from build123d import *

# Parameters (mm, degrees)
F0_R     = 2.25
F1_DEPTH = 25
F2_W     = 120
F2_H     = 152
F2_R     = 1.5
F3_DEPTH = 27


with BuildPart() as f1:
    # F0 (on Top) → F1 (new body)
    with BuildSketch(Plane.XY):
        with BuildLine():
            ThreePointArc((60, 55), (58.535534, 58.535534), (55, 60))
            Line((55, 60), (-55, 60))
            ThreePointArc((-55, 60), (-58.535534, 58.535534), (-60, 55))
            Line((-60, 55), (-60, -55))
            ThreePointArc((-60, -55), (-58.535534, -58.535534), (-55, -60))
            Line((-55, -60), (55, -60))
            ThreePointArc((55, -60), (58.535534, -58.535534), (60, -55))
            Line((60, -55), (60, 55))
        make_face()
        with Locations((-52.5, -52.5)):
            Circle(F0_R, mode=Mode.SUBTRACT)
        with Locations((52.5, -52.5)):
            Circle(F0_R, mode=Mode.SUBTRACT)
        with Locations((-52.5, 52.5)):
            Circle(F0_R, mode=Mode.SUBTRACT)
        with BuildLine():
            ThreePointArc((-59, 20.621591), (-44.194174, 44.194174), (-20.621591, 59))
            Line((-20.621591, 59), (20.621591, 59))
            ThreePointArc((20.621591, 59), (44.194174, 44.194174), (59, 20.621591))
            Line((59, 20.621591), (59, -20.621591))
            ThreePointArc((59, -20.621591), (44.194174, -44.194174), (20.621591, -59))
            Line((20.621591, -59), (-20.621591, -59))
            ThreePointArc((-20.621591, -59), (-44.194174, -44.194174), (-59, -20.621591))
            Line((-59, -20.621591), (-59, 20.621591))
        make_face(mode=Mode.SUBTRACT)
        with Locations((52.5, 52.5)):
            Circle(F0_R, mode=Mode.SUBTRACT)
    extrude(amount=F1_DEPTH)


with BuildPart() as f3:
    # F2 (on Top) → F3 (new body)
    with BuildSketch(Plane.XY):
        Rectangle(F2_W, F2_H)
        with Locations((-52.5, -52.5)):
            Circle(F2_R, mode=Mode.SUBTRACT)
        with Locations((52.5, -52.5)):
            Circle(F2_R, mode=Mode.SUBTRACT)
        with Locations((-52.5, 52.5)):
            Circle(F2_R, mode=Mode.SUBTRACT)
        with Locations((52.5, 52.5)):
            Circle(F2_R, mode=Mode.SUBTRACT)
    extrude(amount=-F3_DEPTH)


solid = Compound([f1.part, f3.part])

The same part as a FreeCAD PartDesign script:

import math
import FreeCAD as App
import Part
import Sketcher
Q = App.Units.Quantity


def add_polygon(sketch, points):
    """Adds a closed chain of lines whose ends are joined by coincident constraints."""
    first, n = sketch.GeometryCount, len(points)
    for a, b in zip(points, points[1:] + points[:1]):
        sketch.addGeometry(Part.LineSegment(App.Vector(*a, 0), App.Vector(*b, 0)), False)
    for i in range(n):
        sketch.addConstraint(Sketcher.Constraint("Coincident", first + i, 2, first + (i + 1) % n, 1))

doc = App.newDocument("Part")
body = doc.addObject("PartDesign::Body", "Body")

sketch1 = body.newObject("Sketcher::SketchObject", "Sketch")
sketch1.AttachmentSupport = (doc.getObject("XY_Plane"), [""])
sketch1.MapMode = "FlatFace"
sketch1.addGeometry([
    Part.ArcOfCircle(Part.Circle(App.Vector(55, 55, 0), App.Vector(0, 0, 1), 5), math.radians(0), math.radians(90)),
    Part.LineSegment(App.Vector(55, 60, 0), App.Vector(-55, 60, 0)),
    Part.ArcOfCircle(Part.Circle(App.Vector(-55, 55, 0), App.Vector(0, 0, 1), 5), math.radians(90), math.radians(180)),
    Part.LineSegment(App.Vector(-60, 55, 0), App.Vector(-60, -55, 0)),
    Part.ArcOfCircle(Part.Circle(App.Vector(-55, -55, 0), App.Vector(0, 0, 1), 5), math.radians(180), math.radians(270)),
    Part.LineSegment(App.Vector(-55, -60, 0), App.Vector(55, -60, 0)),
    Part.ArcOfCircle(Part.Circle(App.Vector(55, -55, 0), App.Vector(0, 0, 1), 5), math.radians(-90), math.radians(0)),
    Part.LineSegment(App.Vector(60, -55, 0), App.Vector(60, 55, 0)),
    Part.Circle(App.Vector(-52.5, -52.5, 0), App.Vector(0, 0, 1), 2.2),
    Part.Circle(App.Vector(52.5, -52.5, 0), App.Vector(0, 0, 1), 2.2),
    Part.Circle(App.Vector(-52.5, 52.5, 0), App.Vector(0, 0, 1), 2.2),
    Part.LineSegment(App.Vector(-59, -20.6, 0), App.Vector(-59, 20.6, 0)),
    Part.ArcOfCircle(Part.Circle(App.Vector(0, 0, 0), App.Vector(0, 0, 1), 62.5), math.radians(109), math.radians(161)),
    Part.LineSegment(App.Vector(-20.6, 59, 0), App.Vector(20.6, 59, 0)),
    Part.ArcOfCircle(Part.Circle(App.Vector(0, 0, 0), App.Vector(0, 0, 1), 62.5), math.radians(19), math.radians(71)),
    Part.LineSegment(App.Vector(59, 20.6, 0), App.Vector(59, -20.6, 0)),
    Part.ArcOfCircle(Part.Circle(App.Vector(0, 0, 0), App.Vector(0, 0, 1), 62.5), math.radians(-71), math.radians(-19)),
    Part.LineSegment(App.Vector(20.6, -59, 0), App.Vector(-20.6, -59, 0)),
    Part.ArcOfCircle(Part.Circle(App.Vector(0, 0, 0), App.Vector(0, 0, 1), 62.5), math.radians(-161), math.radians(-109)),
    Part.Circle(App.Vector(52.5, 52.5, 0), App.Vector(0, 0, 1), 2.2),
], False)
sketch1.addConstraint([
    Sketcher.Constraint("Tangent", 0, 2, 1, 1),
    Sketcher.Constraint("Tangent", 1, 2, 2, 1),
    Sketcher.Constraint("Tangent", 2, 2, 3, 1),
    Sketcher.Constraint("Tangent", 3, 2, 4, 1),
    Sketcher.Constraint("Tangent", 4, 2, 5, 1),
    Sketcher.Constraint("Tangent", 5, 2, 6, 1),
    Sketcher.Constraint("Tangent", 6, 2, 7, 1),
    Sketcher.Constraint("Tangent", 7, 2, 0, 1),
    Sketcher.Constraint("Coincident", 11, 2, 12, 2),
    Sketcher.Constraint("Coincident", 12, 1, 13, 1),
    Sketcher.Constraint("Coincident", 13, 2, 14, 2),
    Sketcher.Constraint("Coincident", 14, 1, 15, 1),
    Sketcher.Constraint("Coincident", 15, 2, 16, 2),
    Sketcher.Constraint("Coincident", 16, 1, 17, 1),
    Sketcher.Constraint("Coincident", 17, 2, 18, 2),
    Sketcher.Constraint("Coincident", 18, 1, 11, 1),
    Sketcher.Constraint("Horizontal", 1),
    Sketcher.Constraint("Vertical", 3),
    Sketcher.Constraint("Horizontal", 5),
    Sketcher.Constraint("Vertical", 7),
    Sketcher.Constraint("Vertical", 11),
    Sketcher.Constraint("Horizontal", 13),
    Sketcher.Constraint("Vertical", 15),
    Sketcher.Constraint("Horizontal", 17),
    Sketcher.Constraint("Coincident", 12, 3, -1, 1),
    Sketcher.Constraint("Coincident", 14, 3, -1, 1),
    Sketcher.Constraint("Coincident", 16, 3, -1, 1),
    Sketcher.Constraint("Coincident", 18, 3, -1, 1),
    Sketcher.Constraint("Equal", 0, 2),
    Sketcher.Constraint("Equal", 2, 4),
    Sketcher.Constraint("Equal", 4, 6),
    Sketcher.Constraint("Equal", 8, 9),
    Sketcher.Constraint("Equal", 9, 10),
    Sketcher.Constraint("Equal", 12, 14),
    Sketcher.Constraint("Equal", 14, 16),
    Sketcher.Constraint("Equal", 16, 18),
    Sketcher.Constraint("Equal", 10, 19),
    Sketcher.Constraint("Symmetric", 0, 3, 4, 3, -1, 1),
    Sketcher.Constraint("Symmetric", 9, 3, 10, 3, -1, 1),
    Sketcher.Constraint("Symmetric", 8, 3, 19, 3, -1, 1),
    Sketcher.Constraint("Symmetric", 8, 3, 9, 3, -2),
    Sketcher.Constraint("Horizontal", 11, 2, 14, 1),
    Sketcher.Constraint("Vertical", 13, 2, 16, 1),
    Sketcher.Constraint("Equal", 5, 3),
    Sketcher.Constraint("Equal", 17, 11),
    Sketcher.Constraint("Radius", 0, Q("5 mm")),
    Sketcher.Constraint("Diameter", 8, Q("4.5 mm")),
    Sketcher.Constraint("Radius", 12, Q("62.499999 mm")),
    Sketcher.Constraint("DistanceX", 1, 2, 1, 1, Q("110 mm")),
    Sketcher.Constraint("DistanceX", 11, 2, -1, 1, Q("59 mm")),
    Sketcher.Constraint("DistanceX", 8, 3, 9, 3, Q("105 mm")),
    Sketcher.Constraint("DistanceY", 8, 3, 10, 3, Q("105 mm")),
])
pad1 = body.newObject("PartDesign::Pad", "Pad")
pad1.Profile = sketch1
pad1.Length = 25
body2 = doc.addObject("PartDesign::Body", "Body001")

sketch2 = body2.newObject("Sketcher::SketchObject", "Sketch001")
sketch2.AttachmentSupport = (doc.getObject("XY_Plane001"), [""])
sketch2.MapMode = "FlatFace"
add_polygon(sketch2, [(-60, 76), (-60, -76), (60, -76), (60, 76)])
sketch2.addGeometry(Part.Circle(App.Vector(-52.5, -52.5, 0), App.Vector(0, 0, 1), 1.5), False)
sketch2.addGeometry(Part.Circle(App.Vector(52.5, -52.5, 0), App.Vector(0, 0, 1), 1.5), False)
sketch2.addGeometry(Part.Circle(App.Vector(-52.5, 52.5, 0), App.Vector(0, 0, 1), 1.5), False)
sketch2.addGeometry(Part.Circle(App.Vector(52.5, 52.5, 0), App.Vector(0, 0, 1), 1.5), False)
sketch2.addConstraint([
    Sketcher.Constraint("Vertical", 0),
    Sketcher.Constraint("Horizontal", 1),
    Sketcher.Constraint("Vertical", 2),
    Sketcher.Constraint("Horizontal", 3),
    Sketcher.Constraint("Equal", 4, 5),
    Sketcher.Constraint("Equal", 5, 6),
    Sketcher.Constraint("Equal", 6, 7),
    Sketcher.Constraint("Symmetric", 5, 3, 6, 3, -1, 1),
    Sketcher.Constraint("Symmetric", 4, 3, 7, 3, -1, 1),
    Sketcher.Constraint("Symmetric", 0, 2, 2, 2, -1, 1),
    Sketcher.Constraint("Symmetric", 4, 3, 5, 3, -2),
    Sketcher.Constraint("Diameter", 4, Q("3 mm")),
    Sketcher.Constraint("DistanceX", 1, 1, 1, 2, Q("120 mm")),
    Sketcher.Constraint("DistanceY", 0, 2, 0, 1, Q("152 mm")),
    Sketcher.Constraint("DistanceX", 4, 3, 5, 3, Q("105 mm")),
    Sketcher.Constraint("DistanceY", 4, 3, 6, 3, Q("105 mm")),
])
pad2 = body2.newObject("PartDesign::Pad", "Pad001")
pad2.Profile = sketch2
pad2.Length = 27
pad2.Reversed = True

doc.recompute()
